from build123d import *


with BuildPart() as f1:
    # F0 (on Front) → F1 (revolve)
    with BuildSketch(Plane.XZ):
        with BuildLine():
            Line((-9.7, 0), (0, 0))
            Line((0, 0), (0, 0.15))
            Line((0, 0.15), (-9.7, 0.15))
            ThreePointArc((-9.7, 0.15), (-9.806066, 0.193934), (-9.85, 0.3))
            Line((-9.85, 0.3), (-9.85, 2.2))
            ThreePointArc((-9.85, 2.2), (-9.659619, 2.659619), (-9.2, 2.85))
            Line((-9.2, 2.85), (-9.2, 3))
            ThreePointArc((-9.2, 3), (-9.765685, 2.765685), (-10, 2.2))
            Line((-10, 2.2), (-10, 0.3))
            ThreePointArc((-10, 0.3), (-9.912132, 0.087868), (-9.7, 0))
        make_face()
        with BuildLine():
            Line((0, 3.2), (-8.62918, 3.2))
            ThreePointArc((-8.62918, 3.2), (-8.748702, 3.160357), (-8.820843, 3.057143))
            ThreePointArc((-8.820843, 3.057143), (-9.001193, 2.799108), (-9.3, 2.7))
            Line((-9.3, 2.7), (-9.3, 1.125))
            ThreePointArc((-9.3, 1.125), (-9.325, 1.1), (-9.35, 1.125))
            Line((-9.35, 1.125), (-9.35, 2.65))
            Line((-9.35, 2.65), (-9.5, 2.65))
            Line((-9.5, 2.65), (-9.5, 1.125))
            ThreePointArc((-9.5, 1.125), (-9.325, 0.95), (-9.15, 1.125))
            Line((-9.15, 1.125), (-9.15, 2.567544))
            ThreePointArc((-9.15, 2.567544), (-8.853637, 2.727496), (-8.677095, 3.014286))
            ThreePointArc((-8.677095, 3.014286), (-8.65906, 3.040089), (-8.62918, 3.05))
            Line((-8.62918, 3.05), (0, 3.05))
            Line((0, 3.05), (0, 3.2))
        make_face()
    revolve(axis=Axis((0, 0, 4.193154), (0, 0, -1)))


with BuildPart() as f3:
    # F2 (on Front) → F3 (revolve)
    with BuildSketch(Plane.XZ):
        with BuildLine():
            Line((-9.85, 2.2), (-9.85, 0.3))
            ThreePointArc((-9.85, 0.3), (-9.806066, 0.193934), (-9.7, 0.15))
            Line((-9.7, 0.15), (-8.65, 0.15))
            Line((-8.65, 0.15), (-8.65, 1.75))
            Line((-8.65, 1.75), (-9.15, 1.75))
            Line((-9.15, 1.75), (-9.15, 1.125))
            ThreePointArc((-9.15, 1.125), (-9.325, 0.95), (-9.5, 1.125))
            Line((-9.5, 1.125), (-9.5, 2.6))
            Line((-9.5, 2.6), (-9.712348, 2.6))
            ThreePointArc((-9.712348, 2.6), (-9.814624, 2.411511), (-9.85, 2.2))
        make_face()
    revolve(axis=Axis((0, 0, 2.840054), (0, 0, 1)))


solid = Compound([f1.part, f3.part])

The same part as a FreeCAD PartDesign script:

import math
import FreeCAD as App
import Part
import Sketcher
from FreeCAD import Vector
Q = App.Units.Quantity

doc = App.newDocument("Part")
body = doc.addObject("PartDesign::Body", "Body")
body.AllowCompound = True

# Sketch on XZ plane
sketch1 = body.newObject("Sketcher::SketchObject", "Sketch")
sketch1.AttachmentSupport = (doc.getObject("XZ_Plane"), [""])
sketch1.MapMode = "FlatFace"
sketch1.addGeometry([
    Part.LineSegment(Vector(-9.7, 0, 0), Vector(0, 0, 0)),  # 0
    Part.LineSegment(Vector(0, 0, 0), Vector(0, 0.15, 0)),  # 1
    Part.LineSegment(Vector(0, 0.15, 0), Vector(-9.7, 0.15, 0)),  # 2
    Part.ArcOfCircle(Part.Circle(Vector(-9.7, 0.3, 0), Vector(0, 0, 1), 0.15), math.radians(-180), math.radians(-90)),  # 3
    Part.LineSegment(Vector(-9.85, 0.3, 0), Vector(-9.85, 2.2, 0)),  # 4
    Part.ArcOfCircle(Part.Circle(Vector(-9.2, 2.2, 0), Vector(0, 0, 1), 0.65), math.radians(90), math.radians(180)),  # 5
    Part.LineSegment(Vector(-9.2, 2.85, 0), Vector(-9.2, 3, 0)),  # 6
    Part.ArcOfCircle(Part.Circle(Vector(-9.2, 2.2, 0), Vector(0, 0, 1), 0.8), math.radians(90), math.radians(180)),  # 7
    Part.LineSegment(Vector(-10, 2.2, 0), Vector(-10, 0.3, 0)),  # 8
    Part.ArcOfCircle(Part.Circle(Vector(-9.7, 0.3, 0), Vector(0, 0, 1), 0.3), math.radians(-180), math.radians(-90)),  # 9
    Part.LineSegment(Vector(0, 3.2, 0), Vector(-8.629, 3.2, 0)),  # 10
    Part.ArcOfCircle(Part.Circle(Vector(-8.629, 3, 0), Vector(0, 0, 1), 0.2), math.radians(90), math.radians(163)),  # 11
    Part.ArcOfCircle(Part.Circle(Vector(-9.3, 3.2, 0), Vector(0, 0, 1), 0.5), math.radians(-90), math.radians(-17)),  # 12
    Part.LineSegment(Vector(-9.3, 2.7, 0), Vector(-9.3, 1.125, 0)),  # 13
    Part.ArcOfCircle(Part.Circle(Vector(-9.325, 1.125, 0), Vector(0, 0, 1), 0.025), math.radians(180), math.radians(360)),  # 14
    Part.LineSegment(Vector(-9.35, 1.125, 0), Vector(-9.35, 2.65, 0)),  # 15
    Part.LineSegment(Vector(-9.35, 2.65, 0), Vector(-9.5, 2.65, 0)),  # 16
    Part.LineSegment(Vector(-9.5, 2.65, 0), Vector(-9.5, 1.125, 0)),  # 17
    Part.ArcOfCircle(Part.Circle(Vector(-9.325, 1.125, 0), Vector(0, 0, 1), 0.175), math.radians(180), math.radians(360)),  # 18
    Part.LineSegment(Vector(-9.15, 1.125, 0), Vector(-9.15, 2.568, 0)),  # 19
    Part.ArcOfCircle(Part.Circle(Vector(-9.3, 3.2, 0), Vector(0, 0, 1), 0.65), math.radians(-77), math.radians(-17)),  # 20
    Part.ArcOfCircle(Part.Circle(Vector(-8.629, 3, 0), Vector(0, 0, 1), 0.05), math.radians(90), math.radians(163)),  # 21
    Part.LineSegment(Vector(-8.629, 3.05, 0), Vector(0, 3.05, 0)),  # 22
    Part.LineSegment(Vector(0, 3.05, 0), Vector(0, 3.2, 0)),  # 23
], False)
sketch1.addConstraint([
    Sketcher.Constraint("Coincident", 0, 2, 1, 1),
    Sketcher.Constraint("Coincident", 1, 2, 2, 1),
    Sketcher.Constraint("Tangent", 2, 2, 3, 2),
    Sketcher.Constraint("Tangent", 3, 1, 4, 1),
    Sketcher.Constraint("Coincident", 4, 2, 5, 2),
    Sketcher.Constraint("Coincident", 5, 1, 6, 1),
    Sketcher.Constraint("Coincident", 6, 2, 7, 1),
    Sketcher.Constraint("Tangent", 7, 2, 8, 1),
    Sketcher.Constraint("Tangent", 8, 2, 9, 1),
    Sketcher.Constraint("Tangent", 9, 2, 0, 1),
    Sketcher.Constraint("Coincident", 10, 2, 11, 1),
    Sketcher.Constraint("Coincident", 11, 2, 12, 2),
    Sketcher.Constraint("Coincident", 12, 1, 13, 1),
    Sketcher.Constraint("Tangent", 13, 2, 14, 2),
    Sketcher.Constraint("Tangent", 14, 1, 15, 1),
    Sketcher.Constraint("Coincident", 15, 2, 16, 1),
    Sketcher.Constraint("Coincident", 16, 2, 17, 1),
    Sketcher.Constraint("Tangent", 17, 2, 18, 1),
    Sketcher.Constraint("Tangent", 18, 2, 19, 1),
    Sketcher.Constraint("Coincident", 19, 2, 20, 1),
    Sketcher.Constraint("Coincident", 20, 2, 21, 2),
    Sketcher.Constraint("Coincident", 21, 1, 22, 1),
    Sketcher.Constraint("Coincident", 22, 2, 23, 1),
    Sketcher.Constraint("Coincident", 23, 2, 10, 1),
    Sketcher.Constraint("Horizontal", 0),
    Sketcher.Constraint("Vertical", 1),
    Sketcher.Constraint("Horizontal", 2),
    Sketcher.Constraint("Vertical", 4),
    Sketcher.Constraint("Vertical", 6),
    Sketcher.Constraint("Vertical", 8),
    Sketcher.Constraint("Horizontal", 10),
    Sketcher.Constraint("Vertical", 13),
    Sketcher.Constraint("Vertical", 15),
    Sketcher.Constraint("Horizontal", 16),
    Sketcher.Constraint("Vertical", 17),
    Sketcher.Constraint("Vertical", 19),
    Sketcher.Constraint("Horizontal", 22),
    Sketcher.Constraint("Vertical", 23),
    Sketcher.Constraint("Coincident", 0, 2, -1, 1),
    Sketcher.Constraint("Coincident", 7, 3, 5, 3),
    Sketcher.Constraint("Coincident", 9, 3, 3, 3),
    Sketcher.Constraint("Coincident", 18, 3, 14, 3),
    Sketcher.Constraint("Coincident", 20, 3, 12, 3),
    Sketcher.Constraint("Coincident", 21, 3, 11, 3),
    Sketcher.Constraint("Equal", 5, 20),
    Sketcher.Constraint("PointOnObject", 22, 2, -2),
    Sketcher.Constraint("Horizontal", 7, 3, 4, 2),
    Sketcher.Constraint("Horizontal", 21, 3, 6, 2),
    Sketcher.Constraint("Horizontal", 20, 3, 10, 2),
    Sketcher.Constraint("Vertical", 7, 3, 5, 1),
    Sketcher.Constraint("Vertical", 21, 3, 10, 2),
    Sketcher.Constraint("Vertical", 10, 2, 21, 1),
    Sketcher.Constraint("Equal", 16, 1),
    Sketcher.Constraint("Equal", 6, 23),
    Sketcher.Constraint("Radius", 7, Q("0.800001 mm")),
    Sketcher.Constraint("Radius", 9, Q("0.3 mm")),
    Sketcher.Constraint("Radius", 11, Q("0.200001 mm")),
    Sketcher.Constraint("Radius", 12, Q("0.499999 mm")),
    Sketcher.Constraint("DistanceX", 0, 1, 0, 2, Q("9.7 mm")),
    Sketcher.Constraint("DistanceY", 4, 1, 4, 2, Q("1.9 mm")),
    Sketcher.Constraint("Radius", 14, Q("0.025 mm")),
    Sketcher.Constraint("DistanceX", 12, 3, -1, 1, Q("9.3 mm")),
    Sketcher.Constraint("DistanceX", 12, 1, -1, 1, Q("9.3 mm")),
    Sketcher.Constraint("DistanceY", 15, 2, 5, 1, Q("0.2 mm")),
    Sketcher.Constraint("DistanceY", 13, 2, 13, 1, Q("1.575 mm")),
    Sketcher.Constraint("DistanceX", 11, 2, -1, 1, Q("8.820843 mm")),
    Sketcher.Constraint("DistanceX", 20, 2, -1, 1, Q("8.677095 mm")),
])
revolution = body.newObject("PartDesign::Revolution", "Revolution")
revolution.Profile = sketch1
revolution.ReferenceAxis = (sketch1, ["V_Axis"])
revolution.Angle = 360
body2 = doc.addObject("PartDesign::Body", "Body001")

# Sketch on XZ plane
sketch2 = body2.newObject("Sketcher::SketchObject", "Sketch001")
sketch2.AttachmentSupport = (doc.getObject("XZ_Plane001"), [""])
sketch2.MapMode = "FlatFace"
sketch2.addGeometry([
    Part.LineSegment(Vector(-9.85, 2.2, 0), Vector(-9.85, 0.3, 0)),  # 0
    Part.ArcOfCircle(Part.Circle(Vector(-9.7, 0.3, 0), Vector(0, 0, 1), 0.15), math.radians(-180), math.radians(-90)),  # 1
    Part.LineSegment(Vector(-9.7, 0.15, 0), Vector(-8.65, 0.15, 0)),  # 2
    Part.LineSegment(Vector(-8.65, 0.15, 0), Vector(-8.65, 1.75, 0)),  # 3
    Part.LineSegment(Vector(-8.65, 1.75, 0), Vector(-9.15, 1.75, 0)),  # 4
    Part.LineSegment(Vector(-9.15, 1.75, 0), Vector(-9.15, 1.12, 0)),  # 5
    Part.ArcOfCircle(Part.Circle(Vector(-9.32, 1.12, 0), Vector(0, 0, 1), 0.17), math.radians(180), math.radians(360)),  # 6
    Part.LineSegment(Vector(-9.5, 1.12, 0), Vector(-9.5, 2.6, 0)),  # 7
    Part.LineSegment(Vector(-9.5, 2.6, 0), Vector(-9.71, 2.6, 0)),  # 8
    Part.ArcOfCircle(Part.Circle(Vector(-9.2, 2.2, 0), Vector(0, 0, 1), 0.65), math.radians(142), math.radians(180)),  # 9
], False)
sketch2.addConstraint([
    Sketcher.Constraint("Tangent", 0, 2, 1, 1),
    Sketcher.Constraint("Tangent", 1, 2, 2, 1),
    Sketcher.Constraint("Coincident", 2, 2, 3, 1),
    Sketcher.Constraint("Coincident", 3, 2, 4, 1),
    Sketcher.Constraint("Coincident", 4, 2, 5, 1),
    Sketcher.Constraint("Tangent", 5, 2, 6, 2),
    Sketcher.Constraint("Tangent", 6, 1, 7, 1),
    Sketcher.Constraint("Coincident", 7, 2, 8, 1),
    Sketcher.Constraint("Coincident", 8, 2, 9, 1),
    Sketcher.Constraint("Coincident", 9, 2, 0, 1),
    Sketcher.Constraint("Vertical", 0),
    Sketcher.Constraint("Horizontal", 2),
    Sketcher.Constraint("Vertical", 3),
    Sketcher.Constraint("Horizontal", 4),
    Sketcher.Constraint("Vertical", 5),
    Sketcher.Constraint("Vertical", 7),
    Sketcher.Constraint("Horizontal", 8),
    Sketcher.Constraint("Radius", 1, Q("0.15 mm")),
    Sketcher.Constraint("DistanceX", 4, 2, 4, 1, Q("0.5 mm")),
    Sketcher.Constraint("DistanceY", 0, 2, 0, 1, Q("1.9 mm")),
    Sketcher.Constraint("DistanceY", 3, 1, 3, 2, Q("1.6 mm")),
    Sketcher.Constraint("Radius", 6, Q("0.175 mm")),
    Sketcher.Constraint("DistanceX", 2, 1, 2, 2, Q("1.05 mm")),
    Sketcher.Constraint("DistanceX", 1, 3, -1, 1, Q("9.7 mm")),
    Sketcher.Constraint("DistanceY", -1, 1, 1, 3, Q("0.3 mm")),
    Sketcher.Constraint("DistanceY", -1, 1, 7, 2, Q("2.6 mm")),
    Sketcher.Constraint("DistanceY", 5, 2, 5, 1, Q("0.625 mm")),
    Sketcher.Constraint("Radius", 9, Q("0.650009 mm")),
    Sketcher.Constraint("DistanceX", 8, 2, 8, 1, Q("0.212348 mm")),
])
revolution2 = body2.newObject("PartDesign::Revolution", "Revolution001")
revolution2.Profile = sketch2
revolution2.ReferenceAxis = (sketch2, ["V_Axis"])
revolution2.Angle = 360

doc.recompute()
